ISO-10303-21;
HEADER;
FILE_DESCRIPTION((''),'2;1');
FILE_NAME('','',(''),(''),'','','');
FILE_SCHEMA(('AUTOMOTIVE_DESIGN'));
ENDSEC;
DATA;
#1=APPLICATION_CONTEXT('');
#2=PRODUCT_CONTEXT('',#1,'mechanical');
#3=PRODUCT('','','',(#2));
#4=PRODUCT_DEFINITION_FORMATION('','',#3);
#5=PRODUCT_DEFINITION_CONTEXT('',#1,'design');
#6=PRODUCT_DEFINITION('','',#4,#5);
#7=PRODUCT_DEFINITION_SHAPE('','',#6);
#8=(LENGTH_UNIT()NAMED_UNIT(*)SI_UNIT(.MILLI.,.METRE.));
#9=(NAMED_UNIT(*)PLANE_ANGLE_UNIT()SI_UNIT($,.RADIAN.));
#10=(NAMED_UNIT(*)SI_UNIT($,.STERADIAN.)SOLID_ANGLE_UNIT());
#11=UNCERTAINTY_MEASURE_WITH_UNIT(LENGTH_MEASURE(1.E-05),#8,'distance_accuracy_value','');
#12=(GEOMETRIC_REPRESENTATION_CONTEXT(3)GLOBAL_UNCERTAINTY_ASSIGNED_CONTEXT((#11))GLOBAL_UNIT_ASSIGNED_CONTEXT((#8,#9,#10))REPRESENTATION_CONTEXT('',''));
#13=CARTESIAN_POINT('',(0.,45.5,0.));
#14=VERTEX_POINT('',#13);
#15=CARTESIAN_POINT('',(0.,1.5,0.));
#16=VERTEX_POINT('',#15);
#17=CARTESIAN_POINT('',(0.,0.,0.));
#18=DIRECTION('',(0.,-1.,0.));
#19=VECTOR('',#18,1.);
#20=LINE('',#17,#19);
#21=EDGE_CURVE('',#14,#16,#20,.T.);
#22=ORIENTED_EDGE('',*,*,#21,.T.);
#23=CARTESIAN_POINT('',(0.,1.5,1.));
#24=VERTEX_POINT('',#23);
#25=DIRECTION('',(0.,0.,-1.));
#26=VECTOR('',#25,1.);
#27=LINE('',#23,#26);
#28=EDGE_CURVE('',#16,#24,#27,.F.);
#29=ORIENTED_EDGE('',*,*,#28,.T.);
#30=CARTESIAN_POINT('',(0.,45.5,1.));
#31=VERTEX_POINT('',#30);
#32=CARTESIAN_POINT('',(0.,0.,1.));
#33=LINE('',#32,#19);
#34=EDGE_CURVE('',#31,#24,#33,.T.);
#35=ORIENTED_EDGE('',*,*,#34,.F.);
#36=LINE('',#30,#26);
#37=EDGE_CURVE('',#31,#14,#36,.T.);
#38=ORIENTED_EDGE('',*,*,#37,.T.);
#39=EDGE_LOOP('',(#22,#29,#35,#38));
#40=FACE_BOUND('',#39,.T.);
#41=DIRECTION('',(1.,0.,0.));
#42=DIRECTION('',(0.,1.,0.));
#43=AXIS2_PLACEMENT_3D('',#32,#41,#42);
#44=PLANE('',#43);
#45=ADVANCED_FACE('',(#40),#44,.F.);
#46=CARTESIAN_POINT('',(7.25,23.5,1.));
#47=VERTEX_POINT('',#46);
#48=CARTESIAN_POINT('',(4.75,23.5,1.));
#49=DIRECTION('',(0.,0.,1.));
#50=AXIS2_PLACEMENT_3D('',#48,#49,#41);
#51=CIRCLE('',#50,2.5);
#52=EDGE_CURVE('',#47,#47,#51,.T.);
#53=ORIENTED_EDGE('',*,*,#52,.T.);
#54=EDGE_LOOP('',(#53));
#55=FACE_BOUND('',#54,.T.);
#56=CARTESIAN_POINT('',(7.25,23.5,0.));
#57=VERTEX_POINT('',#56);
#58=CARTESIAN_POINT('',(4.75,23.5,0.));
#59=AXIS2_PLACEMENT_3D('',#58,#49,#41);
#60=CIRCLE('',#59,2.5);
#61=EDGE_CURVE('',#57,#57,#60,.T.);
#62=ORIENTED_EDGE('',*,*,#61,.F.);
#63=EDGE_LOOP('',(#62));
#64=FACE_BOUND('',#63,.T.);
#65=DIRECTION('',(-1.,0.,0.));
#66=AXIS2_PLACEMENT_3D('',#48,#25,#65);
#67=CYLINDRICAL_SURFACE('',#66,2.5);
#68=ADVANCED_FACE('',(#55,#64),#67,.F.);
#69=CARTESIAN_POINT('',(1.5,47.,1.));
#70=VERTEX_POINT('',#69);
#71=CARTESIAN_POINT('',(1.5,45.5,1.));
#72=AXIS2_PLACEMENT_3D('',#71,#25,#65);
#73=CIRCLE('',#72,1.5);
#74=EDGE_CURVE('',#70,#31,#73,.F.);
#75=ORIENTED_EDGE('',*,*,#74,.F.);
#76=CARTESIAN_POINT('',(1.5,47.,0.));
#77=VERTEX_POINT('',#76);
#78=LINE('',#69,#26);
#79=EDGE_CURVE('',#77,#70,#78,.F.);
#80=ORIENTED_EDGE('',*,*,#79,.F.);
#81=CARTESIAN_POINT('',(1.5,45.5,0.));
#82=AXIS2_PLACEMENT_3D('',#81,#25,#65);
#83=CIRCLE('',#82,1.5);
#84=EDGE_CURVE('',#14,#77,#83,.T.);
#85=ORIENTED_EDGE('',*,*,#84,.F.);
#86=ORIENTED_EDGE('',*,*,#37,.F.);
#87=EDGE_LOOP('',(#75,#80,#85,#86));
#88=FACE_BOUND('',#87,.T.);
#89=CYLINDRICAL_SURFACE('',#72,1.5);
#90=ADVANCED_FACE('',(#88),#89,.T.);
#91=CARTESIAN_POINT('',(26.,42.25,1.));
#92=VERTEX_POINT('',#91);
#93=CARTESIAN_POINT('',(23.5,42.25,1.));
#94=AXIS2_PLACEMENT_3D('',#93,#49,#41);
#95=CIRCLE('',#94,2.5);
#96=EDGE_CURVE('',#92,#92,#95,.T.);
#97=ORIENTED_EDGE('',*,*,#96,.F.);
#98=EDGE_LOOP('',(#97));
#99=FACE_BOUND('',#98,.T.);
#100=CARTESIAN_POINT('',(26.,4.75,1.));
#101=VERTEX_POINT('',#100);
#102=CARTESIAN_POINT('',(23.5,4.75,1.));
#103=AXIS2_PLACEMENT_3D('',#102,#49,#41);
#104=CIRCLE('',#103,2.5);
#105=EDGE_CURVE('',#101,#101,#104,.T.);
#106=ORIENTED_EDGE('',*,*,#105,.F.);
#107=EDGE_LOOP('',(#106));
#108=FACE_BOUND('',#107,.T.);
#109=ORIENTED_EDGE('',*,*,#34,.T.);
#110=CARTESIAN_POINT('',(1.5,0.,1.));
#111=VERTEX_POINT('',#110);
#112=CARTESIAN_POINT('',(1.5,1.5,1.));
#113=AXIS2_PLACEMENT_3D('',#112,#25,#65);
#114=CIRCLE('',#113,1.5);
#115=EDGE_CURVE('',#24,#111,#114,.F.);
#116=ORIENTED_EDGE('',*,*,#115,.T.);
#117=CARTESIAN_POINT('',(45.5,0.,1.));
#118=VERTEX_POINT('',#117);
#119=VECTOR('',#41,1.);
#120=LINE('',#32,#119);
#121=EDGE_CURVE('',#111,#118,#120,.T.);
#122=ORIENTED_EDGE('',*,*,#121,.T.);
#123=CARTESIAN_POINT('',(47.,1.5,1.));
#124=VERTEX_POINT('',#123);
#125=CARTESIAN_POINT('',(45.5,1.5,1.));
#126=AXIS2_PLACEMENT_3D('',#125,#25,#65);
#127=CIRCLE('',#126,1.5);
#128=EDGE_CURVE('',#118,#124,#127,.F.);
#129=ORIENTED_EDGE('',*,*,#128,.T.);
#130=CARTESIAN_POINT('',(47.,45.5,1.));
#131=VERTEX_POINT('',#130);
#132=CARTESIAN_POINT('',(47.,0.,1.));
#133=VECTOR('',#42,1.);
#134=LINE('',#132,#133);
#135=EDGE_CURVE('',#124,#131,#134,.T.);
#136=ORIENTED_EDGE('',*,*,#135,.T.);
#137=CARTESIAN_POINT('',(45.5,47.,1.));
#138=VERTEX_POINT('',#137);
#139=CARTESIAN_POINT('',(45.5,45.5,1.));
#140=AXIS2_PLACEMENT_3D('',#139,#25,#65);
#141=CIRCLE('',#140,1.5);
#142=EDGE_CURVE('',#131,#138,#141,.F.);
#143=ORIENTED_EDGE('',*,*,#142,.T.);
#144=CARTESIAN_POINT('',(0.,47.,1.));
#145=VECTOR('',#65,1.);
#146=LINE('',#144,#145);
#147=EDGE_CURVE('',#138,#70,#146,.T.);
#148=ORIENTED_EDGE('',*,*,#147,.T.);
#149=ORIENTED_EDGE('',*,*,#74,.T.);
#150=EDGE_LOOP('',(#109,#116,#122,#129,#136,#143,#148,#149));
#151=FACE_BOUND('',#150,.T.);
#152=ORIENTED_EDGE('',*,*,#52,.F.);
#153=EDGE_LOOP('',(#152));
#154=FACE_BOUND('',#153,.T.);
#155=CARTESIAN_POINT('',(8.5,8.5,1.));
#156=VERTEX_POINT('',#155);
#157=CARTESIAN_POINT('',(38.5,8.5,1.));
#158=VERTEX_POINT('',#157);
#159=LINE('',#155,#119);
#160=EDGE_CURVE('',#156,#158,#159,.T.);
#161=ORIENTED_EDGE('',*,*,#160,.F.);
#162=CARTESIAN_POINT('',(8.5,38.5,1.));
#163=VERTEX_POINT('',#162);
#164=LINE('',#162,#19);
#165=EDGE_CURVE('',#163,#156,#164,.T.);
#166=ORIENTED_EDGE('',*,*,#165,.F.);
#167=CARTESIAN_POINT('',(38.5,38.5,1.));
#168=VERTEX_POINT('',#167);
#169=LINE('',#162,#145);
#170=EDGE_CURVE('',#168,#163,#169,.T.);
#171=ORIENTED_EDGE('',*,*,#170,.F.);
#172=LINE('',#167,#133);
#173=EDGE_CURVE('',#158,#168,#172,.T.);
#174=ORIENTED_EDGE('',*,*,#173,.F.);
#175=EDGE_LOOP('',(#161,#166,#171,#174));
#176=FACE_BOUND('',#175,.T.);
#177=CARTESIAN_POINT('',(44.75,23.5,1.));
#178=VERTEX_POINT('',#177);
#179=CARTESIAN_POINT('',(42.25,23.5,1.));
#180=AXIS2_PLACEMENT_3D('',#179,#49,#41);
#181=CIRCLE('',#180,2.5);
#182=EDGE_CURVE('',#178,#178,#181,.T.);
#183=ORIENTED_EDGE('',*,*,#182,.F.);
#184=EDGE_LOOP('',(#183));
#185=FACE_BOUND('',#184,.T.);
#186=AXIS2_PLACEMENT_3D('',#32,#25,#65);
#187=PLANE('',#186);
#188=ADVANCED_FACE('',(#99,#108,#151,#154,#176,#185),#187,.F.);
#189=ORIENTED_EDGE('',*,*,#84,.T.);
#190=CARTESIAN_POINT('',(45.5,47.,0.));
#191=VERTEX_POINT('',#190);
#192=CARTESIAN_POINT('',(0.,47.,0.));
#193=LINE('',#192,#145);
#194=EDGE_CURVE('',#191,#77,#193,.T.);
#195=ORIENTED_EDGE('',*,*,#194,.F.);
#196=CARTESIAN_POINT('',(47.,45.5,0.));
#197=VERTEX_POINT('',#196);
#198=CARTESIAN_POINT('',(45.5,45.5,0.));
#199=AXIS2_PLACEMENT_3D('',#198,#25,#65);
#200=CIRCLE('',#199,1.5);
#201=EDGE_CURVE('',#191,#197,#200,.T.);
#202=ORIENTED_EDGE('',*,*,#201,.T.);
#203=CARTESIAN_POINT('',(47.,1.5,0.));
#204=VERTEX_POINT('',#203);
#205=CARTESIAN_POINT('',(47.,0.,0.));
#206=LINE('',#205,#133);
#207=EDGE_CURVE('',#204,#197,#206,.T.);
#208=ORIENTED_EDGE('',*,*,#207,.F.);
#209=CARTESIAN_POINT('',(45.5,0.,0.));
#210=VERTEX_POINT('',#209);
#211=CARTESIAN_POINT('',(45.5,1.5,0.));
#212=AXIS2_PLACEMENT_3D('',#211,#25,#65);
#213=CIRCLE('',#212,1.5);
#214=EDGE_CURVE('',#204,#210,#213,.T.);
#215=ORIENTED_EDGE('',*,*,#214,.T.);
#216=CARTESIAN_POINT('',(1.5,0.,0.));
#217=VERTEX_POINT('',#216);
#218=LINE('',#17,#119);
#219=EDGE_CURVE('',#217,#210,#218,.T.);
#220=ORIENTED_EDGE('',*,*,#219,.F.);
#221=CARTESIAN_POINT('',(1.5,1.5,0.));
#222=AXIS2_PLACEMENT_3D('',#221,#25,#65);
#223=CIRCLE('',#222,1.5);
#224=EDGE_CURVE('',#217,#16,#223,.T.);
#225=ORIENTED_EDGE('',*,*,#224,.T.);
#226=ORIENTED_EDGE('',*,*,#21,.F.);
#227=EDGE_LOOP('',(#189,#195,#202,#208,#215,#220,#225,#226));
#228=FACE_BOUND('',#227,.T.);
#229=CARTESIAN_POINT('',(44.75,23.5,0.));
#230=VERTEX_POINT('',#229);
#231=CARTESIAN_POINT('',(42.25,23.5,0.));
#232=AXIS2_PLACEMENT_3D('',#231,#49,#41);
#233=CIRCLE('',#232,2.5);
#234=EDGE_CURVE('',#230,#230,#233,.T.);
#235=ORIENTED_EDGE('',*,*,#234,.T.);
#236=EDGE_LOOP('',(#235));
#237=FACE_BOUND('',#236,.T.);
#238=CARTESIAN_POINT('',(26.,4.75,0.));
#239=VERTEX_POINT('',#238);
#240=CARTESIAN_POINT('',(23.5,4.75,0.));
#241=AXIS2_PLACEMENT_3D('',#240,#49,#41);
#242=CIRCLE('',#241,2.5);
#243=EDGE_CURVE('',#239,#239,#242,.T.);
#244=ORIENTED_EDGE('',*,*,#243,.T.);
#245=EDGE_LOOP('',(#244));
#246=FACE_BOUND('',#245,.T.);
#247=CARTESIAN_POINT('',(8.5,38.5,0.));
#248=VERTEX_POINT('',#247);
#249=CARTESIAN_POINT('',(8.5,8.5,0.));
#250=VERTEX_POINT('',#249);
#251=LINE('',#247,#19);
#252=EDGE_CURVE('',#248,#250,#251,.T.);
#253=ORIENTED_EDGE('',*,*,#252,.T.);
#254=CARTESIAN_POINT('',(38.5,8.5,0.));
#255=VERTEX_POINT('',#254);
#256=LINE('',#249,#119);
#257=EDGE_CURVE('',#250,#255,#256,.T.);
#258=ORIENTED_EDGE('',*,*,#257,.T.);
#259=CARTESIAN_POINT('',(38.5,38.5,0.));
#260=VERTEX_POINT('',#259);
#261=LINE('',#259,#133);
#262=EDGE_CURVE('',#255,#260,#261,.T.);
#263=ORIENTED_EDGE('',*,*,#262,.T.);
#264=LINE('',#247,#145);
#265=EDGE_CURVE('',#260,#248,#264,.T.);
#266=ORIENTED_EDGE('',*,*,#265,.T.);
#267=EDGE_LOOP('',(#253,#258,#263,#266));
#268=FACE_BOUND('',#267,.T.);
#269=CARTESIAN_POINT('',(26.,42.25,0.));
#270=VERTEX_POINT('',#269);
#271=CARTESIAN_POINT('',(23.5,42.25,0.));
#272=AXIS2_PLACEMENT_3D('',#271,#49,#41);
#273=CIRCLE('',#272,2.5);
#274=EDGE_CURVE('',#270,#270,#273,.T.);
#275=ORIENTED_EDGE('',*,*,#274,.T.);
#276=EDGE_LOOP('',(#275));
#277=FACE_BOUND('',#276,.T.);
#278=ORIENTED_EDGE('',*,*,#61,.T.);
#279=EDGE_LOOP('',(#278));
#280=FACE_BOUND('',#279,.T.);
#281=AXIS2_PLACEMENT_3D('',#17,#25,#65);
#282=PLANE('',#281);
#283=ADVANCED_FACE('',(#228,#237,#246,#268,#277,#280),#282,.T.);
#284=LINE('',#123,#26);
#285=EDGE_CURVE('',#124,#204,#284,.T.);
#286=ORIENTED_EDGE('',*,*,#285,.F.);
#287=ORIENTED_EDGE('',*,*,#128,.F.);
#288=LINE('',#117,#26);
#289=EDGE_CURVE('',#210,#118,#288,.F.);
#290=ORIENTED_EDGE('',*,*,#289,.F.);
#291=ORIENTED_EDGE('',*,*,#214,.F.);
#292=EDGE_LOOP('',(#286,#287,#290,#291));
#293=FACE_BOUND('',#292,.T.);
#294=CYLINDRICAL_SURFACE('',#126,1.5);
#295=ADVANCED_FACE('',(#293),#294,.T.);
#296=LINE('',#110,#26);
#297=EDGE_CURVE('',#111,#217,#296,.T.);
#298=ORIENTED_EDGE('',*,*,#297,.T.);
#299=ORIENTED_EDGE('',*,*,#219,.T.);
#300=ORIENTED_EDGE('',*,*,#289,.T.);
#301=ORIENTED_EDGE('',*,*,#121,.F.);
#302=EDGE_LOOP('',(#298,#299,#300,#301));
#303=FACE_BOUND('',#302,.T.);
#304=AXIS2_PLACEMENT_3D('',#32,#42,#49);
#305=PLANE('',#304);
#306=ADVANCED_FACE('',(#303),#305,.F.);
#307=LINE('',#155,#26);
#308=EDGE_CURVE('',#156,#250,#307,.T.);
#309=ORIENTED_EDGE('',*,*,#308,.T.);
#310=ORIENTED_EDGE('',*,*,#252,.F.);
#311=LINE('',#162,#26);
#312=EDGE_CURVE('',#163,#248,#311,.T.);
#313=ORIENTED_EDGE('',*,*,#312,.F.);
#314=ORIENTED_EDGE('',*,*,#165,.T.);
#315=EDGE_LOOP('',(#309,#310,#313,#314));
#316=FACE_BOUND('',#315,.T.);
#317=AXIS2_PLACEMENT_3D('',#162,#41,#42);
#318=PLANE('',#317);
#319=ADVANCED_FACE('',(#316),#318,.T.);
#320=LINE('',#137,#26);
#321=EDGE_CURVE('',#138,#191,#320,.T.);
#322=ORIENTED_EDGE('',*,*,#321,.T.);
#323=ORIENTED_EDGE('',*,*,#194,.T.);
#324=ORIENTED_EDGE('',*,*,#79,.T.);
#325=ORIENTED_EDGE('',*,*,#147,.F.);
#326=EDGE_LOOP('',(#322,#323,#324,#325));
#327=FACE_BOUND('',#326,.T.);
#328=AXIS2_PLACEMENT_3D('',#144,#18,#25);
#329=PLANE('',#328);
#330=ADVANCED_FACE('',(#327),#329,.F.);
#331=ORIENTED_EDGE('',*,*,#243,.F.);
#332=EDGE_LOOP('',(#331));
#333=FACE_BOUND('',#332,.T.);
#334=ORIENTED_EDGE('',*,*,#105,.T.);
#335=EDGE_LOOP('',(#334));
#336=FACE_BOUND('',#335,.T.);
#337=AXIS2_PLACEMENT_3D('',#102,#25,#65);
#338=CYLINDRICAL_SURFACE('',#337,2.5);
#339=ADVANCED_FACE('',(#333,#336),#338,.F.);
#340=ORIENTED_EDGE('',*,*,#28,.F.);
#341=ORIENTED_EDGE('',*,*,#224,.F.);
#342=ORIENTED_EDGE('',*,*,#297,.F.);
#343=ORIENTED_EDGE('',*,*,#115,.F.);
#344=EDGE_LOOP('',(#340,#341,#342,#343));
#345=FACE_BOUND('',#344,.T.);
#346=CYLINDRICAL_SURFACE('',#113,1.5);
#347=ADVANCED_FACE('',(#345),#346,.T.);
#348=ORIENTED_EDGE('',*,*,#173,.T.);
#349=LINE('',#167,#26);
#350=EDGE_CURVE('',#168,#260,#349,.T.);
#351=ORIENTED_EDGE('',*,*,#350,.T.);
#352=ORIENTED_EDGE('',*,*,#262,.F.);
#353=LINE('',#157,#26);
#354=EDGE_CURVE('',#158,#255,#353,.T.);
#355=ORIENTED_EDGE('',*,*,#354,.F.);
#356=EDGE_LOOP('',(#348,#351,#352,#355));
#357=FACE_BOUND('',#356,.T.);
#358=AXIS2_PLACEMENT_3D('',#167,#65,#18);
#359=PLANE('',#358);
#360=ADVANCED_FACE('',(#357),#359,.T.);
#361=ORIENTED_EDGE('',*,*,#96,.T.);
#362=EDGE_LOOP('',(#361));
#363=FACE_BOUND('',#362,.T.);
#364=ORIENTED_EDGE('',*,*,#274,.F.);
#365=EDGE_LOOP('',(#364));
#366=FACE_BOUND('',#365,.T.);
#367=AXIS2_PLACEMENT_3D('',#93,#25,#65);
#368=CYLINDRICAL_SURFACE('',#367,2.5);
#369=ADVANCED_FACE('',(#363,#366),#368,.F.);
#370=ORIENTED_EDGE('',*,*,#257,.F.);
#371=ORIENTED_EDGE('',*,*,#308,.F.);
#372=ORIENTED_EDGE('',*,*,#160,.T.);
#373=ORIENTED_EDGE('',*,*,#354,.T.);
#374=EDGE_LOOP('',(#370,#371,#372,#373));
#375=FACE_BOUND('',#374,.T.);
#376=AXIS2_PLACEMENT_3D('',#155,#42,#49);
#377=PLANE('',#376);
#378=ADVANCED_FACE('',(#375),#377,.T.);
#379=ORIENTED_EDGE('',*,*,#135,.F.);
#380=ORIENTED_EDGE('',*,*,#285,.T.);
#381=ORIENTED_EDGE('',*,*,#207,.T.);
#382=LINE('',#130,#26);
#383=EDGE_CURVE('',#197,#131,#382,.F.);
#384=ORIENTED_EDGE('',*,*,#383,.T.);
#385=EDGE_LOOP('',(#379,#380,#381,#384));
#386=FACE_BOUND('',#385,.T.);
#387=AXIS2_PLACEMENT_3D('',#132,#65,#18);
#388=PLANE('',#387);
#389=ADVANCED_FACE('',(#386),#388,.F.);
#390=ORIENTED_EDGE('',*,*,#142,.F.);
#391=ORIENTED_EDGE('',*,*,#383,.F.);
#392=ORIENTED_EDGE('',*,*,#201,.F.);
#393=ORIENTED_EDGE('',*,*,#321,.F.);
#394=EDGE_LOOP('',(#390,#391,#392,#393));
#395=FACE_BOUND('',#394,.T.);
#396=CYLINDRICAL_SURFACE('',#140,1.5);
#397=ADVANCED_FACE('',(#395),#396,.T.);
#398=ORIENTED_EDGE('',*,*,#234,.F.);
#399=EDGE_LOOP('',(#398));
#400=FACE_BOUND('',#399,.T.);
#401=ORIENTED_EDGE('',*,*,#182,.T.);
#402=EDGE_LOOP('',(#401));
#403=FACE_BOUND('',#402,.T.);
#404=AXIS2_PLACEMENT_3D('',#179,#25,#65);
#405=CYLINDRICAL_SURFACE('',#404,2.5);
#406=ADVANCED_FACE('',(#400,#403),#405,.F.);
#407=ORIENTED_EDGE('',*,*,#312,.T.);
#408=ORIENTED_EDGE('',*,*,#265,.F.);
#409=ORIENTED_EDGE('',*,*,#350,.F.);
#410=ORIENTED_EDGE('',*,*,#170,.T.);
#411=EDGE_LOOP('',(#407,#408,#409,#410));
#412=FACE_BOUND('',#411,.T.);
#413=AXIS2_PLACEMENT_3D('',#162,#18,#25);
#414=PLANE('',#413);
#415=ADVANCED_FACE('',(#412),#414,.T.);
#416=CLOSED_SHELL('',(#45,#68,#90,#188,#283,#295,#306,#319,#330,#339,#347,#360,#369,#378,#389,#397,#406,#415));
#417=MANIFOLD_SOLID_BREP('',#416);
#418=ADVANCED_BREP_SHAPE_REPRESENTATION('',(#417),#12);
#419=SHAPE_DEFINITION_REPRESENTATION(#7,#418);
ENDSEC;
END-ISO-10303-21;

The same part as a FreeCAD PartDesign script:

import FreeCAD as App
import Part
import Sketcher
Q = App.Units.Quantity


def edges_at(feature, points):
    """Names of the edges that pass closest to the given points."""
    edges = feature.Shape.Edges
    near = lambda p: min(range(len(edges)), key=lambda i: edges[i].distToShape(Part.Vertex(*p))[0])
    return sorted({f"Edge{near(p) + 1}" for p in points})

doc = App.newDocument("Part")
body = doc.addObject("PartDesign::Body", "Body")

# Sketch on XY plane
sketch1 = doc.addObject("Sketcher::SketchObject", "Sketch")
body.addObject(sketch1)
sketch1.AttachmentSupport = (doc.XY_Plane, [""])
sketch1.MapMode = "FlatFace"
sketch1.addGeometry(Part.LineSegment(App.Vector(0, 47, 0), App.Vector(0, 0, 0)), False)
sketch1.addGeometry(Part.LineSegment(App.Vector(0, 0, 0), App.Vector(47, 0, 0)), False)
sketch1.addGeometry(Part.LineSegment(App.Vector(47, 0, 0), App.Vector(47, 47, 0)), False)
sketch1.addGeometry(Part.LineSegment(App.Vector(47, 47, 0), App.Vector(0, 47, 0)), False)
sketch1.addGeometry(Part.Circle(App.Vector(23.5, 4.75, 0), App.Vector(0, 0, 1), 2.5), False)
sketch1.addGeometry(Part.Circle(App.Vector(4.75, 23.5, 0), App.Vector(0, 0, 1), 2.5), False)
sketch1.addGeometry(Part.LineSegment(App.Vector(38.5, 8.5, 0), App.Vector(8.5, 8.5, 0)), False)
sketch1.addGeometry(Part.LineSegment(App.Vector(8.5, 8.5, 0), App.Vector(8.5, 38.5, 0)), False)
sketch1.addGeometry(Part.LineSegment(App.Vector(8.5, 38.5, 0), App.Vector(38.5, 38.5, 0)), False)
sketch1.addGeometry(Part.LineSegment(App.Vector(38.5, 38.5, 0), App.Vector(38.5, 8.5, 0)), False)
sketch1.addGeometry(Part.Circle(App.Vector(42.25, 23.5, 0), App.Vector(0, 0, 1), 2.5), False)
sketch1.addGeometry(Part.Circle(App.Vector(23.5, 42.25, 0), App.Vector(0, 0, 1), 2.5), False)
sketch1.addConstraint(Sketcher.Constraint("Coincident", 0, 2, 1, 1))
sketch1.addConstraint(Sketcher.Constraint("Coincident", 1, 2, 2, 1))
sketch1.addConstraint(Sketcher.Constraint("Coincident", 2, 2, 3, 1))
sketch1.addConstraint(Sketcher.Constraint("Coincident", 3, 2, 0, 1))
sketch1.addConstraint(Sketcher.Constraint("Coincident", 6, 2, 7, 1))
sketch1.addConstraint(Sketcher.Constraint("Coincident", 7, 2, 8, 1))
sketch1.addConstraint(Sketcher.Constraint("Coincident", 8, 2, 9, 1))
sketch1.addConstraint(Sketcher.Constraint("Coincident", 9, 2, 6, 1))
sketch1.addConstraint(Sketcher.Constraint("Vertical", 0))
sketch1.addConstraint(Sketcher.Constraint("Horizontal", 1))
sketch1.addConstraint(Sketcher.Constraint("Vertical", 2))
sketch1.addConstraint(Sketcher.Constraint("Horizontal", 3))
sketch1.addConstraint(Sketcher.Constraint("Horizontal", 6))
sketch1.addConstraint(Sketcher.Constraint("Vertical", 7))
sketch1.addConstraint(Sketcher.Constraint("Horizontal", 8))
sketch1.addConstraint(Sketcher.Constraint("Vertical", 9))
sketch1.addConstraint(Sketcher.Constraint("Coincident", 0, 2, -1, 1))
sketch1.addConstraint(Sketcher.Constraint("Equal", 4, 5))
sketch1.addConstraint(Sketcher.Constraint("Equal", 5, 10))
sketch1.addConstraint(Sketcher.Constraint("Equal", 10, 11))
sketch1.addConstraint(Sketcher.Constraint("Horizontal", 5, 3, 10, 3))
sketch1.addConstraint(Sketcher.Constraint("Vertical", 4, 3, 11, 3))
sketch1.addConstraint(Sketcher.Constraint("Equal", 3, 0))
sketch1.addConstraint(Sketcher.Constraint("Equal", 8, 7))
sketch1.addConstraint(Sketcher.Constraint("Diameter", 4, Q("5 mm")))
sketch1.addConstraint(Sketcher.Constraint("DistanceX", 1, 1, 1, 2, Q("47 mm")))
sketch1.addConstraint(Sketcher.Constraint("DistanceX", 6, 2, 6, 1, Q("30 mm")))
sketch1.addConstraint(Sketcher.Constraint("DistanceX", 6, 2, 4, 3, Q("15 mm")))
sketch1.addConstraint(Sketcher.Constraint("DistanceY", 6, 2, 5, 3, Q("15 mm")))
sketch1.addConstraint(Sketcher.Constraint("DistanceX", -1, 1, 4, 3, Q("23.5 mm")))
sketch1.addConstraint(Sketcher.Constraint("DistanceY", -1, 1, 5, 3, Q("23.5 mm")))
sketch1.addConstraint(Sketcher.Constraint("DistanceX", 5, 3, 10, 3, Q("37.5 mm")))
sketch1.addConstraint(Sketcher.Constraint("DistanceY", 4, 3, 11, 3, Q("37.5 mm")))
sketch1.addConstraint(Sketcher.Constraint("DistanceY", -1, 1, 4, 3, Q("4.75 mm")))
sketch1.addConstraint(Sketcher.Constraint("DistanceX", -1, 1, 5, 3, Q("4.75 mm")))
pad1 = doc.addObject("PartDesign::Pad", "Pad")
body.addObject(pad1)
pad1.Profile = sketch1
pad1.Length = 1
doc.recompute()

fillet = doc.addObject("PartDesign::Fillet", "Fillet")
body.addObject(fillet)
fillet.Base = (pad1, edges_at(pad1, [
    (0, 47, 0.5),
    (47, 47, 0.5),
    (47, 0, 0.5),
    (0, 0, 0.5),
]))
fillet.Radius = 1.5

doc.recompute()
